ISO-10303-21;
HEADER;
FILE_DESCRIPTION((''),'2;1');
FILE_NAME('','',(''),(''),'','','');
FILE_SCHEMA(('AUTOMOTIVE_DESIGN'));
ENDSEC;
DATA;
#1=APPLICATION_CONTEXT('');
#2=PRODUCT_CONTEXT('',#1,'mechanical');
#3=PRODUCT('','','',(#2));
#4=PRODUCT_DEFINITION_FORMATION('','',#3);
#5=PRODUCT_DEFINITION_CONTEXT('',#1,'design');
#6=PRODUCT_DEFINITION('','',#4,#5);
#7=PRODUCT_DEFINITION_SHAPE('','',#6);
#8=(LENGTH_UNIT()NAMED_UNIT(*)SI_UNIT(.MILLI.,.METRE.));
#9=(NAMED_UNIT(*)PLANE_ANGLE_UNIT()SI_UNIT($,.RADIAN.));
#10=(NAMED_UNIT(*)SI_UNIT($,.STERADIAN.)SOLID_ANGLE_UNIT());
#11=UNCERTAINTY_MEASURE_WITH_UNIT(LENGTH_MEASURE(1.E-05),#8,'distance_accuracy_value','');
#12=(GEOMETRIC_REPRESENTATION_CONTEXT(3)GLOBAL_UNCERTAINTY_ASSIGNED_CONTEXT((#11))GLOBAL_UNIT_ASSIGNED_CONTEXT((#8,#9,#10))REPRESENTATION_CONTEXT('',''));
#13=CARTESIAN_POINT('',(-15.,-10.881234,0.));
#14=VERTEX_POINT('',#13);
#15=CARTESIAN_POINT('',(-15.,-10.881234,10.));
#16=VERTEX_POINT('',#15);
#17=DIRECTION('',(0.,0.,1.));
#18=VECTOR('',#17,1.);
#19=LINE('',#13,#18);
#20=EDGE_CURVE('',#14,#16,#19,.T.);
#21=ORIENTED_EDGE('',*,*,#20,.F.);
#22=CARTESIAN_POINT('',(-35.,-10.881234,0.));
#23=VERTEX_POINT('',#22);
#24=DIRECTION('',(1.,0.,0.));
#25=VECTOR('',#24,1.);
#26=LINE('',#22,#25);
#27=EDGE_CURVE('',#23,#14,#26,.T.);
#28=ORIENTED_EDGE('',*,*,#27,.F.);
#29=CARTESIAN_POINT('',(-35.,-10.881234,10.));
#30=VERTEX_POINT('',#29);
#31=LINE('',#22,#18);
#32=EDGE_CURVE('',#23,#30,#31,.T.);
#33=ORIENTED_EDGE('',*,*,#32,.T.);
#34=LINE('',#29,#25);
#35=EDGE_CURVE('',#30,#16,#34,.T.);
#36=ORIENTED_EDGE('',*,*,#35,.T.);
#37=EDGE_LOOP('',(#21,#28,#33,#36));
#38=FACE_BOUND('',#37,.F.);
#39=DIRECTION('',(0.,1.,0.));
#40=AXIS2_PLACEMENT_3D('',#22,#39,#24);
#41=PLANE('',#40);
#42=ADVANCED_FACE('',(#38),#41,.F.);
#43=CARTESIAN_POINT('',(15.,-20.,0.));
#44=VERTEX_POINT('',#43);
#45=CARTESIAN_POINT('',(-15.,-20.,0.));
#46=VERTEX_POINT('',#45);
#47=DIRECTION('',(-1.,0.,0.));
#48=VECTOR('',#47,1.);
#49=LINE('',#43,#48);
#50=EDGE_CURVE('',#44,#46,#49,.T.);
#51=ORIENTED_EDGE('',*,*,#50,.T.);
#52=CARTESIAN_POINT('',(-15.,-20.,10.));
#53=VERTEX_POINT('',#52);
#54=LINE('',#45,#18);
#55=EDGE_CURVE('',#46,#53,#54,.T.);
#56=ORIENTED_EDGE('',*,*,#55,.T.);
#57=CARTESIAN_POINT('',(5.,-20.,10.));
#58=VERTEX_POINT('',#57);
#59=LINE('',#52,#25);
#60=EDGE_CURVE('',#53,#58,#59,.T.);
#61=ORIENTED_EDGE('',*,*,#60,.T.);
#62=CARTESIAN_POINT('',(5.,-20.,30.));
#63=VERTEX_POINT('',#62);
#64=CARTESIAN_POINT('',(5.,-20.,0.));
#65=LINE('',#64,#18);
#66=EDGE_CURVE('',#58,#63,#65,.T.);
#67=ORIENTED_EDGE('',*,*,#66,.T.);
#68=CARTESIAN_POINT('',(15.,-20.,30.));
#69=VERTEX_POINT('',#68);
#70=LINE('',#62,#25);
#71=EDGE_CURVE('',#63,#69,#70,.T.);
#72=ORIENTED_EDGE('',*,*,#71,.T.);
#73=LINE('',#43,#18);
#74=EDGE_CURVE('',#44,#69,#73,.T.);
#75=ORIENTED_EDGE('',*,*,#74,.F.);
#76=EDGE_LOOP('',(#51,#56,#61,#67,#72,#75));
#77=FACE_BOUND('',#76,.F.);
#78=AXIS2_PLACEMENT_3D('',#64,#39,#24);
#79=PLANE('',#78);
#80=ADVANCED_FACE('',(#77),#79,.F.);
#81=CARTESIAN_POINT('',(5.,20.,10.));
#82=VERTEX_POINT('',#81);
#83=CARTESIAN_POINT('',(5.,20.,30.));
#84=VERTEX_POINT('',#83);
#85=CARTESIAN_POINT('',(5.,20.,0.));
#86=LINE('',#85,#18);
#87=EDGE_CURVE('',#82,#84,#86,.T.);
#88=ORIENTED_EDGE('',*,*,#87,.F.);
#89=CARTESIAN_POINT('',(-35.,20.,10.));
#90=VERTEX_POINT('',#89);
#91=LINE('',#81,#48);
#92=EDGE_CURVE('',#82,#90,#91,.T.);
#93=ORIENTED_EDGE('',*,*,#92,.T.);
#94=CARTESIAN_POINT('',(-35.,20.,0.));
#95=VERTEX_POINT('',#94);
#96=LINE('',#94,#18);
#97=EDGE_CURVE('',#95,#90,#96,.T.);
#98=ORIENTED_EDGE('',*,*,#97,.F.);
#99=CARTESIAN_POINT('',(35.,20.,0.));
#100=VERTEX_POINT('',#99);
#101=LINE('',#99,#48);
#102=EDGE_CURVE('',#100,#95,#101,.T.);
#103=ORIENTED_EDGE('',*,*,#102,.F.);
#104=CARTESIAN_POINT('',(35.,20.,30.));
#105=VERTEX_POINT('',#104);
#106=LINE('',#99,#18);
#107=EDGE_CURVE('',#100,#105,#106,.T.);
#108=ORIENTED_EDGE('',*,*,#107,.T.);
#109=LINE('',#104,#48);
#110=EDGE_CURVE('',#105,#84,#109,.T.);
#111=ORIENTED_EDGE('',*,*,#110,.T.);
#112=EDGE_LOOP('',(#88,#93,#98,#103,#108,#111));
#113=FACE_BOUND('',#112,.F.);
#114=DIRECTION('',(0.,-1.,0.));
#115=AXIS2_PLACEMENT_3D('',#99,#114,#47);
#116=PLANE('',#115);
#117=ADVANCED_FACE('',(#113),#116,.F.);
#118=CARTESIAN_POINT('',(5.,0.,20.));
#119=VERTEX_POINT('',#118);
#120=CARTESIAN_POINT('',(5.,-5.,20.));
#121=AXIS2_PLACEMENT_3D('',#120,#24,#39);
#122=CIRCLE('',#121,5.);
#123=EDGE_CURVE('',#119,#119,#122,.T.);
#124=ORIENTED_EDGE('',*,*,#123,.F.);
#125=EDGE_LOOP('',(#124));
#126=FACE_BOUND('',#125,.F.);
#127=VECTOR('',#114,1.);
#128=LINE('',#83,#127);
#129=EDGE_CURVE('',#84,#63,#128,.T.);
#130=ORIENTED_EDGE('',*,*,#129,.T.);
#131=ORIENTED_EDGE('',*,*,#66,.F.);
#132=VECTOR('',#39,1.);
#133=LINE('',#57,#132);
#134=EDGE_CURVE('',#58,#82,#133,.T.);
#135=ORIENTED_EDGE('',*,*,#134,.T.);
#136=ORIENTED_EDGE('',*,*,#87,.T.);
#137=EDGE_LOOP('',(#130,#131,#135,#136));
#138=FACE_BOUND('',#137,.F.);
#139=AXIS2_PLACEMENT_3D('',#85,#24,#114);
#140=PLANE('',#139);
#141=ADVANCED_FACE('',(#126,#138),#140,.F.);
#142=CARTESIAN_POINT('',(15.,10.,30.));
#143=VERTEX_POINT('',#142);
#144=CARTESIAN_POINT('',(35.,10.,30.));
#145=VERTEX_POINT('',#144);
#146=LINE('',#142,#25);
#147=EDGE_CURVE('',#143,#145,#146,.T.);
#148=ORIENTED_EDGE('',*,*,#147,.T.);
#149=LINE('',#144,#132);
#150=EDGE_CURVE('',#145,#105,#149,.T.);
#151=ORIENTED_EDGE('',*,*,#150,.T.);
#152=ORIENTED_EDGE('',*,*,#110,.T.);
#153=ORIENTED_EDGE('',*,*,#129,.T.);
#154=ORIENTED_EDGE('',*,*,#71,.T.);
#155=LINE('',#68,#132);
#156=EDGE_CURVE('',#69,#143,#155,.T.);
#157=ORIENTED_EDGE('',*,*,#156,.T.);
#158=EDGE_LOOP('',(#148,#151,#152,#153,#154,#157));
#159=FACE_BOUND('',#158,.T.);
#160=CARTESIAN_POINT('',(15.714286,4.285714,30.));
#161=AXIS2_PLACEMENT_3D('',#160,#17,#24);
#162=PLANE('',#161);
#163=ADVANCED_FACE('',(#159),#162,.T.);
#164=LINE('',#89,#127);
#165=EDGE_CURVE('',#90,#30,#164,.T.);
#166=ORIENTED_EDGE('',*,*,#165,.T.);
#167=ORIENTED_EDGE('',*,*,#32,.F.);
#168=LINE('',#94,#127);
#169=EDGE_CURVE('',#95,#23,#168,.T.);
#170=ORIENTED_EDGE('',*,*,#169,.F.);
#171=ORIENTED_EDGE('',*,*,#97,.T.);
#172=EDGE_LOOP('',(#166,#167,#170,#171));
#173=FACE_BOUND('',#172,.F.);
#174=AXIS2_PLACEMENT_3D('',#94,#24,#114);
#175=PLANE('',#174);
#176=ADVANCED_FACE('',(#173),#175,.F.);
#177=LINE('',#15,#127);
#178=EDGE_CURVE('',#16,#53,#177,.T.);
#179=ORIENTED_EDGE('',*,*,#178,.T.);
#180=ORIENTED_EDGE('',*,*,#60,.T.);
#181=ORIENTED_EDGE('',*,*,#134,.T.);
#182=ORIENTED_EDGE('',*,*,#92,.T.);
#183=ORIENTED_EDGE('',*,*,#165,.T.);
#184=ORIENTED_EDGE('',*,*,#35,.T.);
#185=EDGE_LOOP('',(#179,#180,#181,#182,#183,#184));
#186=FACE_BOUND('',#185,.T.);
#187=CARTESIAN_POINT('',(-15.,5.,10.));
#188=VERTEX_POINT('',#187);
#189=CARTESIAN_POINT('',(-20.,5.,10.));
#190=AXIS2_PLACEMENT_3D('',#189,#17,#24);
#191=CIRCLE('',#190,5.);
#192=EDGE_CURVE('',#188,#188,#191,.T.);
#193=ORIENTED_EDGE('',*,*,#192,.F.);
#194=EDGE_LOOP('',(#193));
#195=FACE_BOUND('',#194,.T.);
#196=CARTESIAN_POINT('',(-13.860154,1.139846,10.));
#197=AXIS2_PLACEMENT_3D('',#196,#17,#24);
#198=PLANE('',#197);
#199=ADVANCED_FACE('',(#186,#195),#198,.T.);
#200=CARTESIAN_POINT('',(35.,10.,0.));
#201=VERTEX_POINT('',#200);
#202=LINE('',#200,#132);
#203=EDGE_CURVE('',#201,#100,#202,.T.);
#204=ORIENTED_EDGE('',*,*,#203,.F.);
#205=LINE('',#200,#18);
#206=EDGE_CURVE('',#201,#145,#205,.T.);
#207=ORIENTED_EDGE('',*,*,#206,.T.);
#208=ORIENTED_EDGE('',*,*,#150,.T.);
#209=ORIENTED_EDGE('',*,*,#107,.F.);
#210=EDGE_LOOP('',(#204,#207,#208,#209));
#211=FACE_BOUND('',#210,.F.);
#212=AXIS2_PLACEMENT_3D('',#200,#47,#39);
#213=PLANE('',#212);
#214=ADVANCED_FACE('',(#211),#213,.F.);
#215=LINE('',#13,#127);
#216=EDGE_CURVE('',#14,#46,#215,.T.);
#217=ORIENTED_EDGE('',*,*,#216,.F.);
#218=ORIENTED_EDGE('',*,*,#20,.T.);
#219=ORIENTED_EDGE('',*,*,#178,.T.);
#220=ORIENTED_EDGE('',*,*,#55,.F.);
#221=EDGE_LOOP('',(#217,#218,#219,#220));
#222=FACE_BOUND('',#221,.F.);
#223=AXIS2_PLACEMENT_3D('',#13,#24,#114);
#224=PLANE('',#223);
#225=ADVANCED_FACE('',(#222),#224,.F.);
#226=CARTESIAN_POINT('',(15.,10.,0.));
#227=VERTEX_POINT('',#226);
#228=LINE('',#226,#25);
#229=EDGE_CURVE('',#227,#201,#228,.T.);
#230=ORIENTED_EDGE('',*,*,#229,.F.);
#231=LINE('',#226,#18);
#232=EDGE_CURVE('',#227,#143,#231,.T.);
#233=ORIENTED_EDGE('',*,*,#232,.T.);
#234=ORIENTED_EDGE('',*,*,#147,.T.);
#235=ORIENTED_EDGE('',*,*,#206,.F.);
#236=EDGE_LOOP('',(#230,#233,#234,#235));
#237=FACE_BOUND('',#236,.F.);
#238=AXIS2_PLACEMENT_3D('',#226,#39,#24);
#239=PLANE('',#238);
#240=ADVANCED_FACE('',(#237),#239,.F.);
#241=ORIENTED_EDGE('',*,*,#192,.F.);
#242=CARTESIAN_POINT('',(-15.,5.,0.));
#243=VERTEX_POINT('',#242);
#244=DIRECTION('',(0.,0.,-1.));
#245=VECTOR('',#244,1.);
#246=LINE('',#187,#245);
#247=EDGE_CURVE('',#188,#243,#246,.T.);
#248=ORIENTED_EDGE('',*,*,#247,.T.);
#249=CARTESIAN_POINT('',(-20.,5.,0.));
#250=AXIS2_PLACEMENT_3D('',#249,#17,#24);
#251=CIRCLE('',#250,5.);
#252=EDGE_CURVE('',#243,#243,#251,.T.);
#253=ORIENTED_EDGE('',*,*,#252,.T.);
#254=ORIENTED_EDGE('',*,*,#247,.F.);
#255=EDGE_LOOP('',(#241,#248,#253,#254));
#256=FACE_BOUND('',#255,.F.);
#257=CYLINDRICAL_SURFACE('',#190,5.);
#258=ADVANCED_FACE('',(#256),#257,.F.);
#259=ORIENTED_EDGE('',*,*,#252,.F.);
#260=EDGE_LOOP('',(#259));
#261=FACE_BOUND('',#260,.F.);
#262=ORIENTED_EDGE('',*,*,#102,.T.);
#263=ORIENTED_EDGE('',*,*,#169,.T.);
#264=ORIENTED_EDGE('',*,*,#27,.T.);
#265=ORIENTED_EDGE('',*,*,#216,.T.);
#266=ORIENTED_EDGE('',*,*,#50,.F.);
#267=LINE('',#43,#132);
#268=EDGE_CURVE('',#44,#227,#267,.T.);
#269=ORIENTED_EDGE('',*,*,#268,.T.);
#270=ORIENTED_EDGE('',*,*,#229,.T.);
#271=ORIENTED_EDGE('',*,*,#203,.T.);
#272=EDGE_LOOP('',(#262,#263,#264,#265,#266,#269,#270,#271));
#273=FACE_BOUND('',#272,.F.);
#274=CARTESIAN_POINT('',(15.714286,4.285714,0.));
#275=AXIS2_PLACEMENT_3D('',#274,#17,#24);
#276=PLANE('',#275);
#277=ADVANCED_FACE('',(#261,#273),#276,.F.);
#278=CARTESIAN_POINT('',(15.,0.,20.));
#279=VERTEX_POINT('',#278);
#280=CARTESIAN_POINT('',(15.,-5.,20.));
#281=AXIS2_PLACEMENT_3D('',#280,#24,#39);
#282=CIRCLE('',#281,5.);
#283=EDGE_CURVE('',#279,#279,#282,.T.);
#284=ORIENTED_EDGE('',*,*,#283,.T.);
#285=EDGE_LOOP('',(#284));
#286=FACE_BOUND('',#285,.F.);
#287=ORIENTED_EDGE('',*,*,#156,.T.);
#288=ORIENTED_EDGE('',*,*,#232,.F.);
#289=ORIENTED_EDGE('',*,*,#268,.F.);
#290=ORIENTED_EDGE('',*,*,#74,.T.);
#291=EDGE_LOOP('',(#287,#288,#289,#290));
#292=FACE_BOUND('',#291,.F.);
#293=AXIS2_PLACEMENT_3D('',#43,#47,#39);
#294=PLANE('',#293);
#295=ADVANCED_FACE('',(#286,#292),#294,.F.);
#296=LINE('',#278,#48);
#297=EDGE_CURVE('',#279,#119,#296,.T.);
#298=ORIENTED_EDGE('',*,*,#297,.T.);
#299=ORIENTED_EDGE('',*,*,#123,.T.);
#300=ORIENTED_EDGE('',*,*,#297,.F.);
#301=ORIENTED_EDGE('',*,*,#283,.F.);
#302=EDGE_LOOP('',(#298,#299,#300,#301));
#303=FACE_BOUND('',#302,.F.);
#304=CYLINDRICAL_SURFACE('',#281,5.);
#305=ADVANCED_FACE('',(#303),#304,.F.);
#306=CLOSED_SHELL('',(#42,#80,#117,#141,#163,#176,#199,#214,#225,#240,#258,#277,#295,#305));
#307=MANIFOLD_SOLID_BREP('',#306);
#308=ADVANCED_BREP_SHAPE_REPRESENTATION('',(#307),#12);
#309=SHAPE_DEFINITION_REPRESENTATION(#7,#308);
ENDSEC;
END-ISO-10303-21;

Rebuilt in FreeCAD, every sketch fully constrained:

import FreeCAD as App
import Part
import Sketcher

doc = App.newDocument("Part")
body = doc.addObject("PartDesign::Body", "Body")

# Sketch on XY plane
sketch1 = body.newObject("Sketcher::SketchObject", "Sketch")
sketch1.AttachmentSupport = (doc.getObject("XY_Plane"), [""])
sketch1.MapMode = "FlatFace"
sketch1.addGeometry(Part.LineSegment(App.Vector(5, -20, 0), App.Vector(5, 20, 0)), False)
sketch1.addGeometry(Part.LineSegment(App.Vector(5, 20, 0), App.Vector(-35, 20, 0)), False)
sketch1.addGeometry(Part.LineSegment(App.Vector(-35, 20, 0), App.Vector(-35, -11, 0)), False)
sketch1.addGeometry(Part.LineSegment(App.Vector(-35, -11, 0), App.Vector(-15, -11, 0)), False)
sketch1.addGeometry(Part.LineSegment(App.Vector(-15, -11, 0), App.Vector(-15, -20, 0)), False)
sketch1.addGeometry(Part.LineSegment(App.Vector(-15, -20, 0), App.Vector(5, -20, 0)), False)
sketch1.addConstraint(Sketcher.Constraint("Coincident", 0, 2, 1, 1))
sketch1.addConstraint(Sketcher.Constraint("Coincident", 1, 2, 2, 1))
sketch1.addConstraint(Sketcher.Constraint("Coincident", 2, 2, 3, 1))
sketch1.addConstraint(Sketcher.Constraint("Coincident", 3, 2, 4, 1))
sketch1.addConstraint(Sketcher.Constraint("Coincident", 4, 2, 5, 1))
sketch1.addConstraint(Sketcher.Constraint("Coincident", 5, 2, 0, 1))
sketch1.addConstraint(Sketcher.Constraint("Vertical", 0))
sketch1.addConstraint(Sketcher.Constraint("Horizontal", 1))
sketch1.addConstraint(Sketcher.Constraint("Vertical", 2))
sketch1.addConstraint(Sketcher.Constraint("Horizontal", 3))
sketch1.addConstraint(Sketcher.Constraint("Vertical", 4))
sketch1.addConstraint(Sketcher.Constraint("Horizontal", 5))
sketch1.addConstraint(Sketcher.Constraint("Equal", 3, 5))
sketch1.addConstraint(Sketcher.Constraint("Equal", 1, 0))
sketch1.addConstraint(Sketcher.Constraint("DistanceX", 1, 2, 1, 1, 40.0))
sketch1.addConstraint(Sketcher.Constraint("DistanceX", -1, 1, 0, 2, 5.0))
sketch1.addConstraint(Sketcher.Constraint("DistanceY", -1, 1, 0, 2, 20.0))
sketch1.addConstraint(Sketcher.Constraint("DistanceY", 2, 2, 2, 1, 30.881234))
pad1 = body.newObject("PartDesign::Pad", "Pad")
pad1.Profile = sketch1
pad1.Length = 10

# Sketch on XY plane
sketch2 = body.newObject("Sketcher::SketchObject", "Sketch001")
sketch2.AttachmentSupport = (doc.getObject("XY_Plane"), [""])
sketch2.MapMode = "FlatFace"
sketch2.addGeometry(Part.LineSegment(App.Vector(35, 10, 0), App.Vector(35, 20, 0)), False)
sketch2.addGeometry(Part.LineSegment(App.Vector(35, 20, 0), App.Vector(5, 20, 0)), False)
sketch2.addGeometry(Part.LineSegment(App.Vector(5, 20, 0), App.Vector(5, -20, 0)), False)
sketch2.addGeometry(Part.LineSegment(App.Vector(5, -20, 0), App.Vector(15, -20, 0)), False)
sketch2.addGeometry(Part.LineSegment(App.Vector(15, -20, 0), App.Vector(15, 10, 0)), False)
sketch2.addGeometry(Part.LineSegment(App.Vector(15, 10, 0), App.Vector(35, 10, 0)), False)
sketch2.addConstraint(Sketcher.Constraint("Coincident", 0, 2, 1, 1))
sketch2.addConstraint(Sketcher.Constraint("Coincident", 1, 2, 2, 1))
sketch2.addConstraint(Sketcher.Constraint("Coincident", 2, 2, 3, 1))
sketch2.addConstraint(Sketcher.Constraint("Coincident", 3, 2, 4, 1))
sketch2.addConstraint(Sketcher.Constraint("Coincident", 4, 2, 5, 1))
sketch2.addConstraint(Sketcher.Constraint("Coincident", 5, 2, 0, 1))
sketch2.addConstraint(Sketcher.Constraint("Vertical", 0))
sketch2.addConstraint(Sketcher.Constraint("Horizontal", 1))
sketch2.addConstraint(Sketcher.Constraint("Vertical", 2))
sketch2.addConstraint(Sketcher.Constraint("Horizontal", 3))
sketch2.addConstraint(Sketcher.Constraint("Vertical", 4))
sketch2.addConstraint(Sketcher.Constraint("Horizontal", 5))
sketch2.addConstraint(Sketcher.Constraint("Equal", 3, 0))
sketch2.addConstraint(Sketcher.Constraint("Equal", 1, 4))
sketch2.addConstraint(Sketcher.Constraint("DistanceX", 1, 2, 1, 1, 30.0))
sketch2.addConstraint(Sketcher.Constraint("DistanceX", 3, 1, 3, 2, 10.0))
sketch2.addConstraint(Sketcher.Constraint("DistanceX", -1, 1, 0, 2, 35.0))
sketch2.addConstraint(Sketcher.Constraint("DistanceY", -1, 1, 0, 2, 20.0))
pad2 = body.newObject("PartDesign::Pad", "Pad001")
pad2.Profile = sketch2
pad2.Length = 30

# Sketch on YZ plane
sketch3 = body.newObject("Sketcher::SketchObject", "Sketch002")
sketch3.AttachmentSupport = (doc.getObject("YZ_Plane"), [""])
sketch3.MapMode = "FlatFace"
sketch3.AttachmentOffset = App.Placement(App.Vector(0, 0, 15), App.Rotation())
sketch3.addGeometry(Part.Circle(App.Vector(-5, 20, 0), App.Vector(0, 0, 1), 5), False)
sketch3.addConstraint(Sketcher.Constraint("Diameter", 0, 10.0))
sketch3.addConstraint(Sketcher.Constraint("DistanceX", 0, 3, -1, 1, 5.0))
sketch3.addConstraint(Sketcher.Constraint("DistanceY", -1, 1, 0, 3, 20.0))
pocket1 = body.newObject("PartDesign::Pocket", "Pocket")
pocket1.Profile = sketch3
pocket1.Length = 25

# Sketch on XY plane
sketch4 = body.newObject("Sketcher::SketchObject", "Sketch003")
sketch4.AttachmentSupport = (doc.getObject("XY_Plane"), [""])
sketch4.MapMode = "FlatFace"
sketch4.AttachmentOffset = App.Placement(App.Vector(0, 0, 10), App.Rotation())
sketch4.addGeometry(Part.Circle(App.Vector(-20, 5, 0), App.Vector(0, 0, 1), 5), False)
sketch4.addConstraint(Sketcher.Constraint("Diameter", 0, 10.0))
sketch4.addConstraint(Sketcher.Constraint("DistanceX", 0, 3, -1, 1, 20.0))
sketch4.addConstraint(Sketcher.Constraint("DistanceY", -1, 1, 0, 3, 5.0))
pocket2 = body.newObject("PartDesign::Pocket", "Pocket001")
pocket2.Profile = sketch4
pocket2.Length = 25

doc.recompute()
